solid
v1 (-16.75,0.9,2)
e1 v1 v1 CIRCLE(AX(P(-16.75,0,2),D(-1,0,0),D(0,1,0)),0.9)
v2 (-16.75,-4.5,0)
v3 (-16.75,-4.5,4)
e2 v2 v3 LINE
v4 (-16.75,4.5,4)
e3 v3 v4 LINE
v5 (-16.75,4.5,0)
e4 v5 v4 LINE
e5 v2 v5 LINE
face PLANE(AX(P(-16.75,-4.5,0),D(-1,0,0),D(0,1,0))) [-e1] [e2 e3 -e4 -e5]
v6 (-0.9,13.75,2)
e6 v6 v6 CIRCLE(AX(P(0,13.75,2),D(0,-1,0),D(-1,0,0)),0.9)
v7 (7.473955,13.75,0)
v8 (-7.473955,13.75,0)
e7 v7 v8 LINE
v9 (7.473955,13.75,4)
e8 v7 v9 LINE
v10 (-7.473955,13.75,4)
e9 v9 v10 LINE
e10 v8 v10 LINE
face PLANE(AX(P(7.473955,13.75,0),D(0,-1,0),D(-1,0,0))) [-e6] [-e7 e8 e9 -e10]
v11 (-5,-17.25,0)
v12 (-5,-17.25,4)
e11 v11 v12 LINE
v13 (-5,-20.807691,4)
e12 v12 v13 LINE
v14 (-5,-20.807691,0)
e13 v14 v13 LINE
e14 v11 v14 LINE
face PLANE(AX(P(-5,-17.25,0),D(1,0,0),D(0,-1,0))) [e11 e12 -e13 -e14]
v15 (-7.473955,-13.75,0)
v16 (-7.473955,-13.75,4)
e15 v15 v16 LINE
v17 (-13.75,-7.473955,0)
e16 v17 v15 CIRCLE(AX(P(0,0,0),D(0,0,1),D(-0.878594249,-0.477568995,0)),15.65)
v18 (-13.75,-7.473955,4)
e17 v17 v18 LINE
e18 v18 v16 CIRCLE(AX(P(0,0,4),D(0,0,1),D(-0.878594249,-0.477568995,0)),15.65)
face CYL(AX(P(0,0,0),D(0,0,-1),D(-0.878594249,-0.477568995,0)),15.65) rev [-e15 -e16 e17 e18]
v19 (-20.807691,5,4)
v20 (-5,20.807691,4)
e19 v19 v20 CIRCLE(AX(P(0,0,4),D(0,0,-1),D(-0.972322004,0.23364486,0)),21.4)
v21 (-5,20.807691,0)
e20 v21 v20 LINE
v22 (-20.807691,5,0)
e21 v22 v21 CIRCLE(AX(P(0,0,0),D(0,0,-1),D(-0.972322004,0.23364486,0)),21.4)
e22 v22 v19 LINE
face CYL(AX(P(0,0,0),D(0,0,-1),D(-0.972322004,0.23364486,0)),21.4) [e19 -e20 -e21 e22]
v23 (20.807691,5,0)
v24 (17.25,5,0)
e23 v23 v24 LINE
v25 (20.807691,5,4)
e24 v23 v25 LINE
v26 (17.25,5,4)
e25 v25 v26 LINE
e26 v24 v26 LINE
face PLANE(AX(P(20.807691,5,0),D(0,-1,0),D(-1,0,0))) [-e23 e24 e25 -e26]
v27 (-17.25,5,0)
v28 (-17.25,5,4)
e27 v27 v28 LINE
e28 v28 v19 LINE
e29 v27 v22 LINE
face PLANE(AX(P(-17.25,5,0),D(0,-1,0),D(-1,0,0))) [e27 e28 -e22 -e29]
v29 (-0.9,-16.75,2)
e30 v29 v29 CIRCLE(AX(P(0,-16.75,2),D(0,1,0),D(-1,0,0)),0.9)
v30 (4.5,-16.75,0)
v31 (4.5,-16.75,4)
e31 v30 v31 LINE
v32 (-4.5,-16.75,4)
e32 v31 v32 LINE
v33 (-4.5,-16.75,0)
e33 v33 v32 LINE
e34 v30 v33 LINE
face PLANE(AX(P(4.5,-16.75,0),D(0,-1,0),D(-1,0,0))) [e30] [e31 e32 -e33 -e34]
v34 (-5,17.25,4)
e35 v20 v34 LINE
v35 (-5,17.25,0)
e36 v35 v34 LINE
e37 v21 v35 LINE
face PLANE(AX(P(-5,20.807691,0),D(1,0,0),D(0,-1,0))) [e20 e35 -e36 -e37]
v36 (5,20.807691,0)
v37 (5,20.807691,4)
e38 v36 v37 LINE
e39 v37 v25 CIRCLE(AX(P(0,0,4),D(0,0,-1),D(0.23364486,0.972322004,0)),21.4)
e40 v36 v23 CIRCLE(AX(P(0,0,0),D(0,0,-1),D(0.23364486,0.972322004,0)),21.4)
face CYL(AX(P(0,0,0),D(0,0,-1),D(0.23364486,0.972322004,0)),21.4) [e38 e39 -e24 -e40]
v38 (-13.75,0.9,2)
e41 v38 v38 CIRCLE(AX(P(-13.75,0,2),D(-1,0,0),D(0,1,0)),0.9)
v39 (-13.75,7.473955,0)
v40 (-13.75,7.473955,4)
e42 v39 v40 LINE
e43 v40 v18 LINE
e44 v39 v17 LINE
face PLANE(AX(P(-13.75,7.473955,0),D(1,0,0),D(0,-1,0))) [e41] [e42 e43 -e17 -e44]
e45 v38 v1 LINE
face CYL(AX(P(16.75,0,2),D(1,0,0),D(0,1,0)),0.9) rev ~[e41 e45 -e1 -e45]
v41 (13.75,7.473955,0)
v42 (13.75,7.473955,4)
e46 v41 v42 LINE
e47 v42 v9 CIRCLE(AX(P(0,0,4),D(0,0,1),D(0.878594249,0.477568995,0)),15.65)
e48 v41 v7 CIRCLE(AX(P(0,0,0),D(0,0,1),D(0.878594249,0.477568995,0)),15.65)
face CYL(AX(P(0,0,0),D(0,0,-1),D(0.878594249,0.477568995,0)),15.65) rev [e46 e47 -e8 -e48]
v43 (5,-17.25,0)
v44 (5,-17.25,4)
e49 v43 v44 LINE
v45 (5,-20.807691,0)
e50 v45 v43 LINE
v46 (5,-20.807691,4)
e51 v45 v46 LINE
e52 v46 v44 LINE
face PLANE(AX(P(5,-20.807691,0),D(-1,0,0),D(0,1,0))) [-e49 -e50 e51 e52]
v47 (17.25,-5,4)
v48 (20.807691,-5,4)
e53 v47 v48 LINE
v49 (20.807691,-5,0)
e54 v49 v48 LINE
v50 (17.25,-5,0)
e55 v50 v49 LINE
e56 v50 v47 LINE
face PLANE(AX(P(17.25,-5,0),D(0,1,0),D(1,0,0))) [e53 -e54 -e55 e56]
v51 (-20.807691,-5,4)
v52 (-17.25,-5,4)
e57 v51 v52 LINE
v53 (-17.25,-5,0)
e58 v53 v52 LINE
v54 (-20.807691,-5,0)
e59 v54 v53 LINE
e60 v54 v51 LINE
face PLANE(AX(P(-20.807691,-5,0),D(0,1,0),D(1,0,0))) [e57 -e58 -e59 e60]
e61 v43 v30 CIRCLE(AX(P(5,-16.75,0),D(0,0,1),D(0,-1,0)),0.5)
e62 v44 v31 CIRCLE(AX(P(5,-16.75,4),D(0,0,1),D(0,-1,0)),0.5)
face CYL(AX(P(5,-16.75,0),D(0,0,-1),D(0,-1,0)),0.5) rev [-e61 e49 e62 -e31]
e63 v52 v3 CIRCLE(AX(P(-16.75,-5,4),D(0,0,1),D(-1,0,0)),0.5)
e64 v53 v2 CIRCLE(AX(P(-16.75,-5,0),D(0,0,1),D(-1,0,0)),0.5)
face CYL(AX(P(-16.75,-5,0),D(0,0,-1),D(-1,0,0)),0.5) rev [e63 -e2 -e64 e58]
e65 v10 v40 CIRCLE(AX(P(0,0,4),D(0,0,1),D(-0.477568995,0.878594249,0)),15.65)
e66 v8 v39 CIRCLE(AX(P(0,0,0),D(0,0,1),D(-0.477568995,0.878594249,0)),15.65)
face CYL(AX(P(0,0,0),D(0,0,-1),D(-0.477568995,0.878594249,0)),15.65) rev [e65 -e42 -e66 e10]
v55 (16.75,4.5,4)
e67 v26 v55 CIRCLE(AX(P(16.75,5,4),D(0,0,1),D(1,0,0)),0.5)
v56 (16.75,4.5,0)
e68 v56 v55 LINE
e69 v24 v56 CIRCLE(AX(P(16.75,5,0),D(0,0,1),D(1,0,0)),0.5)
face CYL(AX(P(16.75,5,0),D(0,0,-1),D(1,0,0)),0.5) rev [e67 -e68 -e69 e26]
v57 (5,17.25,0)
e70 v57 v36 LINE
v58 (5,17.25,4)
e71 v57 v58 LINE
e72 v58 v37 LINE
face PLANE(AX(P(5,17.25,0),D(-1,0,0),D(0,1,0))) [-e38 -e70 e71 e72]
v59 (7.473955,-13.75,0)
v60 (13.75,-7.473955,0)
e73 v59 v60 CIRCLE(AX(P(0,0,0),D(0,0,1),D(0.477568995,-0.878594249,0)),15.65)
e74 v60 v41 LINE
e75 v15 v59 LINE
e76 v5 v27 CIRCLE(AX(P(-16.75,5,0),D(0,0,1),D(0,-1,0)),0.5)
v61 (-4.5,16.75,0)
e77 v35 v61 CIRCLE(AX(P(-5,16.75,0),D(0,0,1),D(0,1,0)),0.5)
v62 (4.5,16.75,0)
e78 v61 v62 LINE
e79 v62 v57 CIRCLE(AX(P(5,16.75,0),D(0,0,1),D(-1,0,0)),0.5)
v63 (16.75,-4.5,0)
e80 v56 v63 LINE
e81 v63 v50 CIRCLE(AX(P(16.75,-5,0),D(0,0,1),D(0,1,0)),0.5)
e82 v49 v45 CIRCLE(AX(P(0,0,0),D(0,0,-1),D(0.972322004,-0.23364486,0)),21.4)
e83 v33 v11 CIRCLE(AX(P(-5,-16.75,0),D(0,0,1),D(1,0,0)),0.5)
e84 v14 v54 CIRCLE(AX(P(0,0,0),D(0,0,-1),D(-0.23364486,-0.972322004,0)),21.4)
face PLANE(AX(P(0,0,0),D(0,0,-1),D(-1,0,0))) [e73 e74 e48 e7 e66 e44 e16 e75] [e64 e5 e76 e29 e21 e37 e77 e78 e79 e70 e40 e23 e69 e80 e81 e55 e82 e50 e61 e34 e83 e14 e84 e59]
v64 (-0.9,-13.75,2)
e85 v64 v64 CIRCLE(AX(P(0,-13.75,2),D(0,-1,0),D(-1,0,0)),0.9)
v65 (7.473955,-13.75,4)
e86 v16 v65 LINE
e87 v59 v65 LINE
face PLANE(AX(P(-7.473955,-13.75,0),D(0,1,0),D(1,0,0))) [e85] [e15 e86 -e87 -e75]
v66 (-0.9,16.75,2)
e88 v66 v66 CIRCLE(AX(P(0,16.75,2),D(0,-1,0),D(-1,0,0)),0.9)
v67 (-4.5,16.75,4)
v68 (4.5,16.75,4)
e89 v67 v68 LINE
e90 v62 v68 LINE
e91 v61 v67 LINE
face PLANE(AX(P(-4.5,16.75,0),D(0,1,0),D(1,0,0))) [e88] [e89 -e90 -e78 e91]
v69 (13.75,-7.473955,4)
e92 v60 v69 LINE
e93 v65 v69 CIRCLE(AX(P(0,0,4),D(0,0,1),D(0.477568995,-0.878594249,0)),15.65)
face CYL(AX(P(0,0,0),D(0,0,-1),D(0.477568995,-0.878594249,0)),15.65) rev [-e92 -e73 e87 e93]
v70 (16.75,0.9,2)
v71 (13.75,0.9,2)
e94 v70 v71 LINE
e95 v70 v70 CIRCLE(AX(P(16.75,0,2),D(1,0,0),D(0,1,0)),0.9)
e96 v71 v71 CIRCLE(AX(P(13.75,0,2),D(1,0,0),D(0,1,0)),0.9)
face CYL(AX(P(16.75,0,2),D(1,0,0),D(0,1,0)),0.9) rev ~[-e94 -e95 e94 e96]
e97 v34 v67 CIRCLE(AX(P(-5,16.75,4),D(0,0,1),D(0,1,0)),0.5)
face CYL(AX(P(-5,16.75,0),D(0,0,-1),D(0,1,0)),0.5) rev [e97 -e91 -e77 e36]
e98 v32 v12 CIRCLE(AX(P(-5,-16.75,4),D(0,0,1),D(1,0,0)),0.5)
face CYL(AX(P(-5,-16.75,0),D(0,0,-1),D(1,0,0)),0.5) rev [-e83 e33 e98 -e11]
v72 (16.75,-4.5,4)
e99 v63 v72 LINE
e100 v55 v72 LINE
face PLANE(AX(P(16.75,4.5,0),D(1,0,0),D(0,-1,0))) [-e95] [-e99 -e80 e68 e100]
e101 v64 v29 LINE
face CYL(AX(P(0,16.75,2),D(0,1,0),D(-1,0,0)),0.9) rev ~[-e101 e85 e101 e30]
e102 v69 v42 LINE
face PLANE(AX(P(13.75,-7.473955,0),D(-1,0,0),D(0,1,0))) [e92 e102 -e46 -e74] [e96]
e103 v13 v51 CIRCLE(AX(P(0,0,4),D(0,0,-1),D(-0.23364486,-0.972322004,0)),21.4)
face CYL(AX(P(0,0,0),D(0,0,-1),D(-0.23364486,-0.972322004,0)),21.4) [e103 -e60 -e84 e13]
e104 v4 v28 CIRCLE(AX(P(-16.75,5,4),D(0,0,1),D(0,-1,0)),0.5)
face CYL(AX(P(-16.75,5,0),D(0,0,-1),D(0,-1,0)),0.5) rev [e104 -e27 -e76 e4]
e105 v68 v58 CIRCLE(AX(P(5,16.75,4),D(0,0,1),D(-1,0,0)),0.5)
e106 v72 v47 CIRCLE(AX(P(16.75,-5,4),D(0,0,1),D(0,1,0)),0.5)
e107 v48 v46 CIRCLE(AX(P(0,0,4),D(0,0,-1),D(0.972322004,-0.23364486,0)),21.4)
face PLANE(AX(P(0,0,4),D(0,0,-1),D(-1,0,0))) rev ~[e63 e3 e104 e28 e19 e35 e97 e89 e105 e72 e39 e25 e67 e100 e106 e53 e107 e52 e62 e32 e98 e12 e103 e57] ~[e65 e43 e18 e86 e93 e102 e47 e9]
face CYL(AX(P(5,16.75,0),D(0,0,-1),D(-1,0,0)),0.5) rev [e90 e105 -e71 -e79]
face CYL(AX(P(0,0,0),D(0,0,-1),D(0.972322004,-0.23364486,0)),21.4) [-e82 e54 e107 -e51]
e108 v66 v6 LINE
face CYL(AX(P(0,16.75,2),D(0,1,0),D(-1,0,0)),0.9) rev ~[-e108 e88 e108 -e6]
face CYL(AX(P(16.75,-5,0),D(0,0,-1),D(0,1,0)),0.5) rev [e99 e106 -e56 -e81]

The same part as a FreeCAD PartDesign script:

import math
import FreeCAD as App
import Part
import Sketcher
Q = App.Units.Quantity

doc = App.newDocument("Part")
params = doc.addObject("Spreadsheet::Sheet", "Params")
for row, (alias, value) in enumerate([
    ("sketch1_radius", "0.5 mm"),
    ("sketch1_radius2", "21.4 mm"),
    ("sketch1_width", "9 mm"),
    ("sketch1_radius3", "15.65 mm"),
    ("pad1_length", "4 mm"),
    ("sketch2_diameter", "1.8 mm"),
    ("pocket1_length", "43 mm"),
], start=1):
    params.set(f"A{row}", alias)
    params.set(f"B{row}", "=" + value)
    params.setAlias(f"B{row}", alias)

body = doc.addObject("PartDesign::Body", "Body")

# Sketch on XY plane
sketch1 = body.newObject("Sketcher::SketchObject", "Sketch")
sketch1.AttachmentSupport = (doc.getObject("XY_Plane"), [""])
sketch1.MapMode = "FlatFace"
sketch1.addGeometry([
    Part.LineSegment(App.Vector(4.5, 16.8, 0), App.Vector(-4.5, 16.8, 0)),  # 0
    Part.ArcOfCircle(Part.Circle(App.Vector(-5, 16.8, 0), App.Vector(0, 0, 1), 0.5), math.radians(90), math.radians(360)),  # 1
    Part.LineSegment(App.Vector(-5, 17.2, 0), App.Vector(-5, 20.8, 0)),  # 2
    Part.ArcOfCircle(Part.Circle(App.Vector(0, 0, 0), App.Vector(0, 0, 1), 21.4), math.radians(104), math.radians(166)),  # 3
    Part.LineSegment(App.Vector(-20.8, 5, 0), App.Vector(-17.2, 5, 0)),  # 4
    Part.ArcOfCircle(Part.Circle(App.Vector(-16.8, 5, 0), App.Vector(0, 0, 1), 0.5), math.radians(-90), math.radians(180)),  # 5
    Part.LineSegment(App.Vector(-16.8, 4.5, 0), App.Vector(-16.8, -4.5, 0)),  # 6
    Part.ArcOfCircle(Part.Circle(App.Vector(-16.8, -5, 0), App.Vector(0, 0, 1), 0.5), math.radians(180), math.radians(450)),  # 7
    Part.LineSegment(App.Vector(-17.2, -5, 0), App.Vector(-20.8, -5, 0)),  # 8
    Part.ArcOfCircle(Part.Circle(App.Vector(0, 0, 0), App.Vector(0, 0, 1), 21.4), math.radians(-166), math.radians(-104)),  # 9
    Part.LineSegment(App.Vector(-5, -20.8, 0), App.Vector(-5, -17.2, 0)),  # 10
    Part.ArcOfCircle(Part.Circle(App.Vector(-5, -16.8, 0), App.Vector(0, 0, 1), 0.5), math.radians(0), math.radians(270)),  # 11
    Part.LineSegment(App.Vector(-4.5, -16.8, 0), App.Vector(4.5, -16.8, 0)),  # 12
    Part.ArcOfCircle(Part.Circle(App.Vector(5, -16.8, 0), App.Vector(0, 0, 1), 0.5), math.radians(-90), math.radians(180)),  # 13
    Part.LineSegment(App.Vector(5, -17.2, 0), App.Vector(5, -20.8, 0)),  # 14
    Part.ArcOfCircle(Part.Circle(App.Vector(0, 0, 0), App.Vector(0, 0, 1), 21.4), math.radians(-76), math.radians(-14)),  # 15
    Part.LineSegment(App.Vector(20.8, -5, 0), App.Vector(17.2, -5, 0)),  # 16
    Part.ArcOfCircle(Part.Circle(App.Vector(16.8, -5, 0), App.Vector(0, 0, 1), 0.5), math.radians(90), math.radians(360)),  # 17
    Part.LineSegment(App.Vector(16.8, -4.5, 0), App.Vector(16.8, 4.5, 0)),  # 18
    Part.ArcOfCircle(Part.Circle(App.Vector(16.8, 5, 0), App.Vector(0, 0, 1), 0.5), math.radians(0), math.radians(270)),  # 19
    Part.LineSegment(App.Vector(17.2, 5, 0), App.Vector(20.8, 5, 0)),  # 20
    Part.ArcOfCircle(Part.Circle(App.Vector(0, 0, 0), App.Vector(0, 0, 1), 21.4), math.radians(14), math.radians(76)),  # 21
    Part.LineSegment(App.Vector(5, 20.8, 0), App.Vector(5, 17.2, 0)),  # 22
    Part.ArcOfCircle(Part.Circle(App.Vector(5, 16.8, 0), App.Vector(0, 0, 1), 0.5), math.radians(180), math.radians(450)),  # 23
    Part.ArcOfCircle(Part.Circle(App.Vector(0, 0, 0), App.Vector(0, 0, 1), 15.6), math.radians(-151), math.radians(-119)),  # 24
    Part.LineSegment(App.Vector(-13.8, -7.5, 0), App.Vector(-13.8, 7.5, 0)),  # 25
    Part.ArcOfCircle(Part.Circle(App.Vector(0, 0, 0), App.Vector(0, 0, 1), 15.6), math.radians(119), math.radians(151)),  # 26
    Part.LineSegment(App.Vector(-7.5, 13.8, 0), App.Vector(7.5, 13.8, 0)),  # 27
    Part.ArcOfCircle(Part.Circle(App.Vector(0, 0, 0), App.Vector(0, 0, 1), 15.6), math.radians(29), math.radians(61)),  # 28
    Part.LineSegment(App.Vector(13.8, 7.5, 0), App.Vector(13.8, -7.5, 0)),  # 29
    Part.ArcOfCircle(Part.Circle(App.Vector(0, 0, 0), App.Vector(0, 0, 1), 15.6), math.radians(-61), math.radians(-29)),  # 30
    Part.LineSegment(App.Vector(7.5, -13.8, 0), App.Vector(-7.5, -13.8, 0)),  # 31
], False)
sketch1.addConstraint([
    Sketcher.Constraint("Coincident", 0, 2, 1, 2),
    Sketcher.Constraint("Coincident", 1, 1, 2, 1),
    Sketcher.Constraint("Coincident", 2, 2, 3, 1),
    Sketcher.Constraint("Coincident", 3, 2, 4, 1),
    Sketcher.Constraint("Coincident", 4, 2, 5, 2),
    Sketcher.Constraint("Coincident", 5, 1, 6, 1),
    Sketcher.Constraint("Coincident", 6, 2, 7, 2),
    Sketcher.Constraint("Coincident", 7, 1, 8, 1),
    Sketcher.Constraint("Coincident", 8, 2, 9, 1),
    Sketcher.Constraint("Coincident", 9, 2, 10, 1),
    Sketcher.Constraint("Coincident", 10, 2, 11, 2),
    Sketcher.Constraint("Coincident", 11, 1, 12, 1),
    Sketcher.Constraint("Coincident", 12, 2, 13, 2),
    Sketcher.Constraint("Coincident", 13, 1, 14, 1),
    Sketcher.Constraint("Coincident", 14, 2, 15, 1),
    Sketcher.Constraint("Coincident", 15, 2, 16, 1),
    Sketcher.Constraint("Coincident", 16, 2, 17, 2),
    Sketcher.Constraint("Coincident", 17, 1, 18, 1),
    Sketcher.Constraint("Coincident", 18, 2, 19, 2),
    Sketcher.Constraint("Coincident", 19, 1, 20, 1),
    Sketcher.Constraint("Coincident", 20, 2, 21, 1),
    Sketcher.Constraint("Coincident", 21, 2, 22, 1),
    Sketcher.Constraint("Coincident", 22, 2, 23, 2),
    Sketcher.Constraint("Coincident", 23, 1, 0, 1),
    Sketcher.Constraint("Coincident", 24, 1, 25, 1),
    Sketcher.Constraint("Coincident", 25, 2, 26, 2),
    Sketcher.Constraint("Coincident", 26, 1, 27, 1),
    Sketcher.Constraint("Coincident", 27, 2, 28, 2),
    Sketcher.Constraint("Coincident", 28, 1, 29, 1),
    Sketcher.Constraint("Coincident", 29, 2, 30, 2),
    Sketcher.Constraint("Coincident", 30, 1, 31, 1),
    Sketcher.Constraint("Coincident", 31, 2, 24, 2),
    Sketcher.Constraint("Horizontal", 0),
    Sketcher.Constraint("Vertical", 2),
    Sketcher.Constraint("Horizontal", 4),
    Sketcher.Constraint("Vertical", 6),
    Sketcher.Constraint("Horizontal", 8),
    Sketcher.Constraint("Vertical", 10),
    Sketcher.Constraint("Horizontal", 12),
    Sketcher.Constraint("Vertical", 14),
    Sketcher.Constraint("Horizontal", 16),
    Sketcher.Constraint("Vertical", 18),
    Sketcher.Constraint("Horizontal", 20),
    Sketcher.Constraint("Vertical", 22),
    Sketcher.Constraint("Vertical", 25),
    Sketcher.Constraint("Horizontal", 27),
    Sketcher.Constraint("Vertical", 29),
    Sketcher.Constraint("Horizontal", 31),
    Sketcher.Constraint("Coincident", 3, 3, -1, 1),
    Sketcher.Constraint("Coincident", 9, 3, -1, 1),
    Sketcher.Constraint("Coincident", 15, 3, -1, 1),
    Sketcher.Constraint("Coincident", 21, 3, -1, 1),
    Sketcher.Constraint("Coincident", 24, 3, -1, 1),
    Sketcher.Constraint("Coincident", 26, 3, -1, 1),
    Sketcher.Constraint("Coincident", 28, 3, -1, 1),
    Sketcher.Constraint("Coincident", 30, 3, -1, 1),
    Sketcher.Constraint("Equal", 1, 5),
    Sketcher.Constraint("Equal", 5, 7),
    Sketcher.Constraint("Equal", 3, 9),
    Sketcher.Constraint("Equal", 7, 11),
    Sketcher.Constraint("Equal", 11, 13),
    Sketcher.Constraint("Equal", 9, 15),
    Sketcher.Constraint("Equal", 13, 17),
    Sketcher.Constraint("Equal", 17, 19),
    Sketcher.Constraint("Equal", 15, 21),
    Sketcher.Constraint("Equal", 19, 23),
    Sketcher.Constraint("Equal", 24, 26),
    Sketcher.Constraint("Equal", 26, 28),
    Sketcher.Constraint("Equal", 28, 30),
    Sketcher.Constraint("Symmetric", 1, 3, 13, 3, -1, 1),
    Sketcher.Constraint("Symmetric", 5, 3, 17, 3, -1, 1),
    Sketcher.Constraint("Symmetric", 7, 3, 19, 3, -1, 1),
    Sketcher.Constraint("Symmetric", 11, 3, 23, 3, -1, 1),
    Sketcher.Constraint("Symmetric", 11, 3, 13, 3, -2),
    Sketcher.Constraint("Symmetric", 7, 3, 17, 3, -2),
    Sketcher.Constraint("Horizontal", 23, 3, 0, 2),
    Sketcher.Constraint("Horizontal", 19, 3, 3, 2),
    Sketcher.Constraint("Horizontal", 17, 3, 7, 1),
    Sketcher.Constraint("Horizontal", 13, 3, 11, 1),
    Sketcher.Constraint("Horizontal", 9, 2, 14, 2),
    Sketcher.Constraint("Horizontal", 8, 2, 15, 2),
    Sketcher.Constraint("Horizontal", 4, 2, 19, 1),
    Sketcher.Constraint("Horizontal", 2, 2, 21, 2),
    Sketcher.Constraint("Horizontal", 25, 2, 28, 1),
    Sketcher.Constraint("Vertical", 11, 3, 1, 1),
    Sketcher.Constraint("Vertical", 7, 3, 5, 1),
    Sketcher.Constraint("Vertical", 2, 2, 9, 2),
    Sketcher.Constraint("Vertical", 19, 3, 17, 1),
    Sketcher.Constraint("Vertical", 27, 2, 30, 1),
    Sketcher.Constraint("Equal", 20, 2),
    Sketcher.Constraint("Equal", 12, 6),
    Sketcher.Constraint("Equal", 31, 25),
    Sketcher.Constraint("Radius", 1, Q("0.5 mm")),
    Sketcher.Constraint("Radius", 3, Q("21.4 mm")),
    Sketcher.Constraint("DistanceX", 0, 2, 0, 1, Q("9 mm")),
    Sketcher.Constraint("Radius", 24, Q("15.65 mm")),
    Sketcher.Constraint("DistanceX", 7, 3, 24, 1, Q("3 mm")),
    Sketcher.Constraint("DistanceY", 11, 3, 1, 3, Q("33.5 mm")),
])
sketch1.setExpression("Constraints[92]", "Params.sketch1_radius")
sketch1.setExpression("Constraints[93]", "Params.sketch1_radius2")
sketch1.setExpression("Constraints[94]", "Params.sketch1_width")
sketch1.setExpression("Constraints[95]", "Params.sketch1_radius3")
pad1 = body.newObject("PartDesign::Pad", "Pad")
pad1.Profile = sketch1
pad1.setExpression("Length", "Params.pad1_length")

# Sketch on XZ plane
sketch2 = body.newObject("Sketcher::SketchObject", "Sketch001")
sketch2.AttachmentSupport = (doc.getObject("XZ_Plane"), [""])
sketch2.MapMode = "FlatFace"
sketch2.AttachmentOffset = App.Placement(App.Vector(0, 0, -16.75), App.Rotation())
sketch2.addGeometry(Part.Circle(App.Vector(0, 2, 0), App.Vector(0, 0, 1), 0.9), False)
sketch2.addConstraint([
    Sketcher.Constraint("PointOnObject", 0, 3, -2),
    Sketcher.Constraint("Diameter", 0, Q("1.8 mm")),
    Sketcher.Constraint("DistanceY", -1, 1, 0, 3, Q("2 mm")),
])
sketch2.setExpression("Constraints[1]", "Params.sketch2_diameter")
pocket1 = body.newObject("PartDesign::Pocket", "Pocket")
pocket1.Profile = sketch2
pocket1.setExpression("Length", "Params.pocket1_length")
pocket1.Reversed = True
doc.recompute()

polarpattern = body.newObject("PartDesign::PolarPattern", "PolarPattern")
polarpattern.Originals = [pocket1]
polarpattern.Axis = (doc.getObject("Z_Axis"), [""])
polarpattern.Angle = 360
polarpattern.Occurrences = 4
body.Tip = polarpattern

doc.recompute()
